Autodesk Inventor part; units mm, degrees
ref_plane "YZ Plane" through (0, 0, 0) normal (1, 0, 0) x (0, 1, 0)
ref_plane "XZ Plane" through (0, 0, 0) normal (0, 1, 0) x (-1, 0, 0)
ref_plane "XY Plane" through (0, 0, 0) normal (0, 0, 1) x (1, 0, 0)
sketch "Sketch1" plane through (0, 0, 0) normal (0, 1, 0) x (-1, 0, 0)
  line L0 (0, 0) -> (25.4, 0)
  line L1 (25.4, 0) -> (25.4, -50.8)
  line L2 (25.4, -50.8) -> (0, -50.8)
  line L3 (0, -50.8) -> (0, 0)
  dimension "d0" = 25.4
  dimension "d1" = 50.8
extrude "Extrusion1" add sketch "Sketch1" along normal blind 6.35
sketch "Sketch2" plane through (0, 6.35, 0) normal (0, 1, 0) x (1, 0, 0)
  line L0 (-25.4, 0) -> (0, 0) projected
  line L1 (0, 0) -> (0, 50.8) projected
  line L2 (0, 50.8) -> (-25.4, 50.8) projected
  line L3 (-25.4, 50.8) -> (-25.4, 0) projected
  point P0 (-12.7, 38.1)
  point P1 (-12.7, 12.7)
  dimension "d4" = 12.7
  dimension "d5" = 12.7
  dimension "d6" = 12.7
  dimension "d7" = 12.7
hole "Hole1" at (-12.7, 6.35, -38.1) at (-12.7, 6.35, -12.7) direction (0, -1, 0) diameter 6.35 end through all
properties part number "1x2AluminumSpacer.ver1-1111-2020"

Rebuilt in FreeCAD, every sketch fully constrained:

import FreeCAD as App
import Part
import Sketcher
Q = App.Units.Quantity


def add_polygon(sketch, points):
    """Adds a closed chain of lines whose ends are joined by coincident constraints."""
    first, n = sketch.GeometryCount, len(points)
    for a, b in zip(points, points[1:] + points[:1]):
        sketch.addGeometry(Part.LineSegment(App.Vector(*a, 0), App.Vector(*b, 0)), False)
    for i in range(n):
        sketch.addConstraint(Sketcher.Constraint("Coincident", first + i, 2, first + (i + 1) % n, 1))

doc = App.newDocument("Part")
body = doc.addObject("PartDesign::Body", "Body")

# Sketch on XZ plane
sketch1 = body.newObject("Sketcher::SketchObject", "Sketch")
sketch1.AttachmentSupport = (doc.getObject("XZ_Plane"), [""])
sketch1.MapMode = "FlatFace"
add_polygon(sketch1, [(-25, 0), (0, 0), (0, -51), (-25, -51)])  # lines 0-3
sketch1.addConstraint([
    Sketcher.Constraint("Horizontal", 0),
    Sketcher.Constraint("Vertical", 1),
    Sketcher.Constraint("Horizontal", 2),
    Sketcher.Constraint("Vertical", 3),
    Sketcher.Constraint("Coincident", 0, 2, -1, 1),
    Sketcher.Constraint("DistanceX", 0, 1, 0, 2, Q("1 in")),
    Sketcher.Constraint("DistanceY", 1, 2, 1, 1, Q("2 in")),
])
pad1 = body.newObject("PartDesign::Pad", "Pad")
pad1.Profile = sketch1
pad1.Length = Q("0.25 in")
pad1.Reversed = True

# Sketch on XZ plane
sketch2 = body.newObject("Sketcher::SketchObject", "Sketch001")
sketch2.AttachmentSupport = (doc.getObject("XZ_Plane"), [""])
sketch2.MapMode = "FlatFace"
sketch2.AttachmentOffset = App.Placement(App.Vector(0, 0, -0.25 * 25.4), App.Rotation())
sketch2.addGeometry([
    Part.Circle(App.Vector(-12.7, -38.1, 0), App.Vector(0, 0, 1), 3.2),
    Part.Circle(App.Vector(-12.7, -12.7, 0), App.Vector(0, 0, 1), 3.2),
], False)
sketch2.addConstraint([
    Sketcher.Constraint("Equal", 0, 1),
    Sketcher.Constraint("Vertical", 0, 3, 1, 3),
    Sketcher.Constraint("Diameter", 0, Q("0.25 in")),
    Sketcher.Constraint("DistanceY", 0, 3, 1, 3, Q("1 in")),
    Sketcher.Constraint("DistanceX", 0, 3, -1, 1, Q("0.5 in")),
    Sketcher.Constraint("DistanceY", 0, 3, -1, 1, Q("1.5 in")),
])
doc.recompute()
hole = body.newObject("PartDesign::Hole", "Hole")
hole.Profile = sketch2
hole.ThreadType = "None"
hole.Diameter = Q("0.25 in")
hole.DepthType = "ThroughAll"
hole.Reversed = True

doc.recompute()
